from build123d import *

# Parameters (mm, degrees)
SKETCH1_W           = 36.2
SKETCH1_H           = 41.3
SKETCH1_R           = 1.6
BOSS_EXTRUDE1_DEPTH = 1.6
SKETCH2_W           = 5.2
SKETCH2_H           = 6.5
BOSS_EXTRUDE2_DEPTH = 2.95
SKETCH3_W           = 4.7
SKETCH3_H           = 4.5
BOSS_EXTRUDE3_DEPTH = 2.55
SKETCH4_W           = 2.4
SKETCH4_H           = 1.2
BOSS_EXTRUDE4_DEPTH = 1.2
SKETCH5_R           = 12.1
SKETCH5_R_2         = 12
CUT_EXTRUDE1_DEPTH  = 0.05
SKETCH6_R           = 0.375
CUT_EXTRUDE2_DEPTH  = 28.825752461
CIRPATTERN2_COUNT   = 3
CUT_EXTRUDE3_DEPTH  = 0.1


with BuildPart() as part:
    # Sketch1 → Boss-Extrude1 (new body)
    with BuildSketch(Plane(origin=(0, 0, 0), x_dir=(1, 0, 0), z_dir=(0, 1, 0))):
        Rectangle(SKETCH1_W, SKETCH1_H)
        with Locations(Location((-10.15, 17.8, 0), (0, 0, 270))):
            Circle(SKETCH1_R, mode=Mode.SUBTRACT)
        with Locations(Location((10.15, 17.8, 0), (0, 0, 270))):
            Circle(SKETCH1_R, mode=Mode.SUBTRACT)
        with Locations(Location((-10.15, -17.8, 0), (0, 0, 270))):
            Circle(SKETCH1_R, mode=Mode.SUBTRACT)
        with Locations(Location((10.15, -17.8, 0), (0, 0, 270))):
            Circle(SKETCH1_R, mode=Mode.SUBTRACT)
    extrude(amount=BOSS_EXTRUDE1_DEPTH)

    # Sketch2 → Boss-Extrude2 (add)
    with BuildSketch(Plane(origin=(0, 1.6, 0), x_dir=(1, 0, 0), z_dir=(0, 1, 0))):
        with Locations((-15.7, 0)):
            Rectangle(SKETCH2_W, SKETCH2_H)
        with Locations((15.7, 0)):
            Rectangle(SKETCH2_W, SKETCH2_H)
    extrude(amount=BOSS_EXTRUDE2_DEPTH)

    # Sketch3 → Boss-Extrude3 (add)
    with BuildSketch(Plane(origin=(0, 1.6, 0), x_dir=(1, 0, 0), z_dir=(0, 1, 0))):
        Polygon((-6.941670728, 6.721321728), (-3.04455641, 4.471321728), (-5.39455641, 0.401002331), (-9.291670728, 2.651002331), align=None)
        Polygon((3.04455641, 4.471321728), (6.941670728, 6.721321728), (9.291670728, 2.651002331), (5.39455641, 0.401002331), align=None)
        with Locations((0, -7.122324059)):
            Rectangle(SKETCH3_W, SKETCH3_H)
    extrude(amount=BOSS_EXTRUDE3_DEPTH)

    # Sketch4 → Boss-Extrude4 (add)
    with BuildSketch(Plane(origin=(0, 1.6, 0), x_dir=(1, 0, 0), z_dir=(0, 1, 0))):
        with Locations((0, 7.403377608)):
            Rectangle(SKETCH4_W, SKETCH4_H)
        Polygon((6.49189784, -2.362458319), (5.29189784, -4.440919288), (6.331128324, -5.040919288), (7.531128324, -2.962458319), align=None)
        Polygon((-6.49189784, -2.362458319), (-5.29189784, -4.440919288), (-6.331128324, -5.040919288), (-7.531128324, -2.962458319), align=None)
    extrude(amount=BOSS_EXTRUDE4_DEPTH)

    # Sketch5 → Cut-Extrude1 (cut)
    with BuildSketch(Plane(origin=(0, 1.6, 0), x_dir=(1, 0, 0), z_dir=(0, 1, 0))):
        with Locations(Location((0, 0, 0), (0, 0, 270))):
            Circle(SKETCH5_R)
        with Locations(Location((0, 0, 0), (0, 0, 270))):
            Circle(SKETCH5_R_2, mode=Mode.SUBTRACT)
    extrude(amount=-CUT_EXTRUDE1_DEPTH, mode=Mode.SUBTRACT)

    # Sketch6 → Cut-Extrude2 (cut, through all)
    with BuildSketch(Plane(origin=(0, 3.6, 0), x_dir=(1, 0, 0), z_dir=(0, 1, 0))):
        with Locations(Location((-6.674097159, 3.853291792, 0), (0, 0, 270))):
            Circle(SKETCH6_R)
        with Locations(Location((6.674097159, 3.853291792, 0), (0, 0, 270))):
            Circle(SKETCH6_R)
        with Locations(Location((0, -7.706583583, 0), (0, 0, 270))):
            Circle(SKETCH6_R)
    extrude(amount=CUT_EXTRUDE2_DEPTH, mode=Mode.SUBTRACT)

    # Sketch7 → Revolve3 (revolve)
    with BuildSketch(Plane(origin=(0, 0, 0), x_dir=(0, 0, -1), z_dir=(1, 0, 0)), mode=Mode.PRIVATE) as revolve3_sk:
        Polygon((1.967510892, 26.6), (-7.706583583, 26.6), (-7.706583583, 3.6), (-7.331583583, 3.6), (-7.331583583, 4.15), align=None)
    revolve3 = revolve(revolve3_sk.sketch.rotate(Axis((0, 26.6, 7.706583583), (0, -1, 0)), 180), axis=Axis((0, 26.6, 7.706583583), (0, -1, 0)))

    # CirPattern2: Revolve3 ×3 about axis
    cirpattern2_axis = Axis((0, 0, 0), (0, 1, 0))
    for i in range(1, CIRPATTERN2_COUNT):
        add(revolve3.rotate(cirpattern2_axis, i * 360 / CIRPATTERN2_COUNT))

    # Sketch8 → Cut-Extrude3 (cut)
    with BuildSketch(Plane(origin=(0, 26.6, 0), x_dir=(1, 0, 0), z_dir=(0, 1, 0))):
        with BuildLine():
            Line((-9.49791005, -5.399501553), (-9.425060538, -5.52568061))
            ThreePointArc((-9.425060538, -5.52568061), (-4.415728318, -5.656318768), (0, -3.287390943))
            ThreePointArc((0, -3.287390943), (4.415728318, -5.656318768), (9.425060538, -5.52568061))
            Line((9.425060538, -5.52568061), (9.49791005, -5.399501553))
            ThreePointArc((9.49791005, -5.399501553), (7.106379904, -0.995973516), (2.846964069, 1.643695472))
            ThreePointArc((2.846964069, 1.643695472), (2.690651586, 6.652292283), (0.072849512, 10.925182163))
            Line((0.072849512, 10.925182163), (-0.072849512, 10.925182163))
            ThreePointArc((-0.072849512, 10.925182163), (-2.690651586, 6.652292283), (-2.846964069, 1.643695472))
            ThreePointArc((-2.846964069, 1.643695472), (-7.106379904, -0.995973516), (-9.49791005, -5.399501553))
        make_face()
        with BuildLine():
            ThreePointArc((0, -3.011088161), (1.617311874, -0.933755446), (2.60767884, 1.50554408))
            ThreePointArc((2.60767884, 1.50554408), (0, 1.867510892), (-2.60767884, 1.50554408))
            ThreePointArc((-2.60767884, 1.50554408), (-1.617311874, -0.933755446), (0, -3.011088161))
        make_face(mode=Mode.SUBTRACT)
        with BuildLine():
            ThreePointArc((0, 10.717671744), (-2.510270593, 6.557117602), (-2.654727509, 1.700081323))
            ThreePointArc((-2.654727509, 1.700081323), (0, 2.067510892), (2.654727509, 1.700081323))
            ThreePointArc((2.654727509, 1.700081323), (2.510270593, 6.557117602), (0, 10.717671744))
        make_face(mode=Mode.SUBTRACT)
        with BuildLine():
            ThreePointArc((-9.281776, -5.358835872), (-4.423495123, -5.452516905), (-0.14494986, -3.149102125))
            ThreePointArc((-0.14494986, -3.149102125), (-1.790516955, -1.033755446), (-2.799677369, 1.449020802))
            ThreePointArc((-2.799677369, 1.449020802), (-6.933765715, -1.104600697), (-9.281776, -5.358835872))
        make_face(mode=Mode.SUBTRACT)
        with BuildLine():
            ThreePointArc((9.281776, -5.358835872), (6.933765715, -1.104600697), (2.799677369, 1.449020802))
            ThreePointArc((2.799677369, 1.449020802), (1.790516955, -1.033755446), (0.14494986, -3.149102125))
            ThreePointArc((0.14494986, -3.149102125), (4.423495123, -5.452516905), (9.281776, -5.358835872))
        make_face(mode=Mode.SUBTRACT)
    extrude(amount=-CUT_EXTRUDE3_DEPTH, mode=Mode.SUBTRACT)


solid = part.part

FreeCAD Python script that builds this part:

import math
import FreeCAD as App
import Part
import Sketcher

V = App.Vector
Q = App.Units.Quantity

doc = App.newDocument("Part")
params = doc.addObject("Spreadsheet::Sheet", "Params")
for row, (alias, value) in enumerate([
    ("sketch1_diameter", "3.2 mm"),
    ("sketch1_width", "36.2 mm"),
    ("sketch1_height", "41.3 mm"),
    ("pad1_length", "1.6 mm"),
    ("sketch2_width", "5.2 mm"),
    ("sketch2_height", "6.5 mm"),
    ("pad2_length", "2.95 mm"),
    ("sketch3_width", "4.7 mm"),
    ("sketch3_height", "4.5 mm"),
    ("sketch3_length", "4.5 mm"),
    ("sketch3_length2", "4.7 mm"),
    ("pad3_length", "2.55 mm"),
    ("sketch4_width", "2.4 mm"),
    ("sketch4_height", "1.2 mm"),
    ("sketch4_length", "2.4 mm"),
    ("sketch4_length2", "1.2 mm"),
    ("pad4_length", "1.2 mm"),
    ("sketch5_diameter", "24 mm"),
    ("sketch5_diameter2", "24.2 mm"),
    ("pocket1_length", "0.05 mm"),
    ("sketch6_diameter", "0.75 mm"),
    ("sketch7_width", "23 mm"),
    ("sketch7_width2", "0.55 mm"),
    ("revolution_angle", "360 deg"),
    ("pocket3_length", "0.1 mm"),
], start=1):
    params.set(f"A{row}", alias)
    params.set(f"B{row}", "=" + value)
    params.setAlias(f"B{row}", alias)

body = doc.addObject("PartDesign::Body", "Body")

sketch1 = body.newObject("Sketcher::SketchObject", "Sketch")
sketch1.AttachmentSupport = (doc.getObject("XZ_Plane"), [""])
sketch1.MapMode = "FlatFace"
sketch1.addGeometry([
    Part.LineSegment(V(-18.1, -20.6, 0), V(-18.1, 20.6, 0)),
    Part.LineSegment(V(-18.1, 20.6, 0), V(18.1, 20.6, 0)),
    Part.LineSegment(V(18.1, 20.6, 0), V(18.1, -20.6, 0)),
    Part.LineSegment(V(18.1, -20.6, 0), V(-18.1, -20.6, 0)),
    Part.Circle(V(-10.2, 17.8, 0), V(0, 0, 1), 1.6),
    Part.Circle(V(10.2, 17.8, 0), V(0, 0, 1), 1.6),
    Part.Circle(V(-10.2, -17.8, 0), V(0, 0, 1), 1.6),
    Part.Circle(V(10.2, -17.8, 0), V(0, 0, 1), 1.6),
], False)
sketch1.addConstraint([
    Sketcher.Constraint("Coincident", 0, 2, 1, 1),
    Sketcher.Constraint("Coincident", 1, 2, 2, 1),
    Sketcher.Constraint("Coincident", 2, 2, 3, 1),
    Sketcher.Constraint("Coincident", 3, 2, 0, 1),
    Sketcher.Constraint("Vertical", 0),
    Sketcher.Constraint("Horizontal", 1),
    Sketcher.Constraint("Vertical", 2),
    Sketcher.Constraint("Horizontal", 3),
    Sketcher.Constraint("Equal", 4, 5),
    Sketcher.Constraint("Equal", 5, 6),
    Sketcher.Constraint("Equal", 6, 7),
    Sketcher.Constraint("Symmetric", 5, 3, 6, 3, -1, 1),
    Sketcher.Constraint("Symmetric", 4, 3, 7, 3, -1, 1),
    Sketcher.Constraint("Symmetric", 0, 2, 2, 2, -1, 1),
    Sketcher.Constraint("Symmetric", 4, 3, 5, 3, -2),
    Sketcher.Constraint("Diameter", 4, Q("3.2 mm")),
    Sketcher.Constraint("DistanceX", 1, 1, 1, 2, Q("36.2 mm")),
    Sketcher.Constraint("DistanceY", 0, 1, 0, 2, Q("41.3 mm")),
    Sketcher.Constraint("DistanceY", -1, 1, 4, 3, Q("17.8 mm")),
    Sketcher.Constraint("DistanceX", 4, 3, 5, 3, Q("20.3 mm")),
])
sketch1.setExpression("Constraints[15]", "Params.sketch1_diameter")
sketch1.setExpression("Constraints[16]", "Params.sketch1_width")
sketch1.setExpression("Constraints[17]", "Params.sketch1_height")
pad1 = body.newObject("PartDesign::Pad", "Pad")
pad1.Profile = sketch1
pad1.setExpression("Length", "Params.pad1_length")
pad1.Reversed = True

sketch2 = body.newObject("Sketcher::SketchObject", "Sketch001")
sketch2.AttachmentSupport = (doc.getObject("XZ_Plane"), [""])
sketch2.MapMode = "FlatFace"
sketch2.AttachmentOffset = App.Placement(V(0, 0, -1.6), App.Rotation())
sketch2.addGeometry([
    Part.LineSegment(V(-18, -3, 0), V(-18, 3, 0)),
    Part.LineSegment(V(-18, 3, 0), V(-13, 3, 0)),
    Part.LineSegment(V(-13, 3, 0), V(-13, -3, 0)),
    Part.LineSegment(V(-13, -3, 0), V(-18, -3, 0)),
    Part.LineSegment(V(13, -3, 0), V(13, 3, 0)),
    Part.LineSegment(V(13, 3, 0), V(18, 3, 0)),
    Part.LineSegment(V(18, 3, 0), V(18, -3, 0)),
    Part.LineSegment(V(18, -3, 0), V(13, -3, 0)),
], False)
sketch2.addConstraint([
    Sketcher.Constraint("Coincident", 0, 2, 1, 1),
    Sketcher.Constraint("Coincident", 1, 2, 2, 1),
    Sketcher.Constraint("Coincident", 2, 2, 3, 1),
    Sketcher.Constraint("Coincident", 3, 2, 0, 1),
    Sketcher.Constraint("Coincident", 4, 2, 5, 1),
    Sketcher.Constraint("Coincident", 5, 2, 6, 1),
    Sketcher.Constraint("Coincident", 6, 2, 7, 1),
    Sketcher.Constraint("Coincident", 7, 2, 4, 1),
    Sketcher.Constraint("Vertical", 0),
    Sketcher.Constraint("Horizontal", 1),
    Sketcher.Constraint("Vertical", 2),
    Sketcher.Constraint("Horizontal", 3),
    Sketcher.Constraint("Vertical", 4),
    Sketcher.Constraint("Horizontal", 5),
    Sketcher.Constraint("Vertical", 6),
    Sketcher.Constraint("Horizontal", 7),
    Sketcher.Constraint("Symmetric", 2, 2, 4, 2, -1, 1),
    Sketcher.Constraint("Symmetric", 0, 2, 6, 2, -1, 1),
    Sketcher.Constraint("Horizontal", 1, 2, 4, 2),
    Sketcher.Constraint("DistanceX", 1, 1, 1, 2, Q("5.2 mm")),
    Sketcher.Constraint("DistanceY", 0, 1, 0, 2, Q("6.5 mm")),
    Sketcher.Constraint("DistanceX", 0, 2, -1, 1, Q("18.3 mm")),
])
sketch2.setExpression("Constraints[19]", "Params.sketch2_width")
sketch2.setExpression("Constraints[20]", "Params.sketch2_height")
pad2 = body.newObject("PartDesign::Pad", "Pad001")
pad2.Profile = sketch2
pad2.setExpression("Length", "Params.pad2_length")
pad2.Reversed = True

sketch3 = body.newObject("Sketcher::SketchObject", "Sketch002")
sketch3.AttachmentSupport = (doc.getObject("XZ_Plane"), [""])
sketch3.MapMode = "FlatFace"
sketch3.AttachmentOffset = App.Placement(V(0, 0, -1.6), App.Rotation())
sketch3.addGeometry([
    Part.LineSegment(V(-3, -4.5, 0), V(-6.9, -6.7, 0)),
    Part.LineSegment(V(-6.9, -6.7, 0), V(-9.3, -2.7, 0)),
    Part.LineSegment(V(-9.3, -2.7, 0), V(-5.4, -0.4, 0)),
    Part.LineSegment(V(-5.4, -0.4, 0), V(-3, -4.5, 0)),
    Part.LineSegment(V(6.9, -6.7, 0), V(3, -4.5, 0)),
    Part.LineSegment(V(3, -4.5, 0), V(5.4, -0.4, 0)),
    Part.LineSegment(V(5.4, -0.4, 0), V(9.3, -2.7, 0)),
    Part.LineSegment(V(9.3, -2.7, 0), V(6.9, -6.7, 0)),
    Part.LineSegment(V(-2.4, 4.9, 0), V(-2.4, 9.4, 0)),
    Part.LineSegment(V(-2.4, 9.4, 0), V(2.4, 9.4, 0)),
    Part.LineSegment(V(2.4, 9.4, 0), V(2.4, 4.9, 0)),
    Part.LineSegment(V(2.4, 4.9, 0), V(-2.4, 4.9, 0)),
], False)
sketch3.addConstraint([
    Sketcher.Constraint("Coincident", 0, 2, 1, 1),
    Sketcher.Constraint("Coincident", 1, 2, 2, 1),
    Sketcher.Constraint("Coincident", 2, 2, 3, 1),
    Sketcher.Constraint("Coincident", 3, 2, 0, 1),
    Sketcher.Constraint("Coincident", 4, 2, 5, 1),
    Sketcher.Constraint("Coincident", 5, 2, 6, 1),
    Sketcher.Constraint("Coincident", 6, 2, 7, 1),
    Sketcher.Constraint("Coincident", 7, 2, 4, 1),
    Sketcher.Constraint("Coincident", 8, 2, 9, 1),
    Sketcher.Constraint("Coincident", 9, 2, 10, 1),
    Sketcher.Constraint("Coincident", 10, 2, 11, 1),
    Sketcher.Constraint("Coincident", 11, 2, 8, 1),
    Sketcher.Constraint("Vertical", 8),
    Sketcher.Constraint("Horizontal", 9),
    Sketcher.Constraint("Vertical", 10),
    Sketcher.Constraint("Horizontal", 11),
    Sketcher.Constraint("Symmetric", 3, 2, 4, 2, -2),
    Sketcher.Constraint("Symmetric", 2, 2, 5, 2, -2),
    Sketcher.Constraint("Symmetric", 1, 2, 6, 2, -2),
    Sketcher.Constraint("Symmetric", 0, 2, 7, 2, -2),
    Sketcher.Constraint("Perpendicular", 0, 1),
    Sketcher.Constraint("Perpendicular", 1, 2),
    Sketcher.Constraint("Perpendicular", 2, 3),
    Sketcher.Constraint("Angle", 0, Q("-150 deg")),
    Sketcher.Constraint("DistanceX", 9, 1, 9, 2, Q("4.7 mm")),
    Sketcher.Constraint("DistanceY", 8, 1, 8, 2, Q("4.5 mm")),
    Sketcher.Constraint("Distance", 0, Q("4.5 mm")),
    Sketcher.Constraint("Distance", 1, Q("4.7 mm")),
    Sketcher.Constraint("DistanceX", 8, 2, -1, 1, Q("2.35 mm")),
    Sketcher.Constraint("DistanceX", 0, 2, -1, 1, Q("6.941671 mm")),
    Sketcher.Constraint("DistanceY", 0, 2, -1, 1, Q("6.721322 mm")),
    Sketcher.Constraint("DistanceY", -1, 1, 8, 2, Q("9.372324 mm")),
])
sketch3.setExpression("Constraints[24]", "Params.sketch3_width")
sketch3.setExpression("Constraints[25]", "Params.sketch3_height")
sketch3.setExpression("Constraints[26]", "Params.sketch3_length")
sketch3.setExpression("Constraints[27]", "Params.sketch3_length2")
pad3 = body.newObject("PartDesign::Pad", "Pad002")
pad3.Profile = sketch3
pad3.setExpression("Length", "Params.pad3_length")
pad3.Reversed = True

sketch4 = body.newObject("Sketcher::SketchObject", "Sketch003")
sketch4.AttachmentSupport = (doc.getObject("XZ_Plane"), [""])
sketch4.MapMode = "FlatFace"
sketch4.AttachmentOffset = App.Placement(V(0, 0, -1.6), App.Rotation())
sketch4.addGeometry([
    Part.LineSegment(V(-1.2, -8, 0), V(-1.2, -6.8, 0)),
    Part.LineSegment(V(-1.2, -6.8, 0), V(1.2, -6.8, 0)),
    Part.LineSegment(V(1.2, -6.8, 0), V(1.2, -8, 0)),
    Part.LineSegment(V(1.2, -8, 0), V(-1.2, -8, 0)),
    Part.LineSegment(V(6.5, 2.4, 0), V(5.3, 4.4, 0)),
    Part.LineSegment(V(5.3, 4.4, 0), V(6.3, 5, 0)),
    Part.LineSegment(V(6.3, 5, 0), V(7.5, 3, 0)),
    Part.LineSegment(V(7.5, 3, 0), V(6.5, 2.4, 0)),
    Part.LineSegment(V(-5.3, 4.4, 0), V(-6.5, 2.4, 0)),
    Part.LineSegment(V(-6.5, 2.4, 0), V(-7.5, 3, 0)),
    Part.LineSegment(V(-7.5, 3, 0), V(-6.3, 5, 0)),
    Part.LineSegment(V(-6.3, 5, 0), V(-5.3, 4.4, 0)),
], False)
sketch4.addConstraint([
    Sketcher.Constraint("Coincident", 0, 2, 1, 1),
    Sketcher.Constraint("Coincident", 1, 2, 2, 1),
    Sketcher.Constraint("Coincident", 2, 2, 3, 1),
    Sketcher.Constraint("Coincident", 3, 2, 0, 1),
    Sketcher.Constraint("Coincident", 4, 2, 5, 1),
    Sketcher.Constraint("Coincident", 5, 2, 6, 1),
    Sketcher.Constraint("Coincident", 6, 2, 7, 1),
    Sketcher.Constraint("Coincident", 7, 2, 4, 1),
    Sketcher.Constraint("Coincident", 8, 2, 9, 1),
    Sketcher.Constraint("Coincident", 9, 2, 10, 1),
    Sketcher.Constraint("Coincident", 10, 2, 11, 1),
    Sketcher.Constraint("Coincident", 11, 2, 8, 1),
    Sketcher.Constraint("Vertical", 0),
    Sketcher.Constraint("Horizontal", 1),
    Sketcher.Constraint("Vertical", 2),
    Sketcher.Constraint("Horizontal", 3),
    Sketcher.Constraint("Symmetric", 7, 2, 8, 2, -2),
    Sketcher.Constraint("Symmetric", 6, 2, 9, 2, -2),
    Sketcher.Constraint("Symmetric", 5, 2, 10, 2, -2),
    Sketcher.Constraint("Symmetric", 4, 2, 11, 2, -2),
    Sketcher.Constraint("Perpendicular", 4, 5),
    Sketcher.Constraint("Perpendicular", 5, 6),
    Sketcher.Constraint("Perpendicular", 6, 7),
    Sketcher.Constraint("Angle", 4, Q("120 deg")),
    Sketcher.Constraint("DistanceX", 1, 1, 1, 2, Q("2.4 mm")),
    Sketcher.Constraint("DistanceY", 0, 1, 0, 2, Q("1.2 mm")),
    Sketcher.Constraint("Distance", 4, Q("2.4 mm")),
    Sketcher.Constraint("Distance", 5, Q("1.2 mm")),
    Sketcher.Constraint("DistanceX", 0, 2, -1, 1, Q("1.2 mm")),
    Sketcher.Constraint("DistanceY", -1, 1, 4, 2, Q("4.440919 mm")),
    Sketcher.Constraint("DistanceX", -1, 1, 5, 2, Q("6.331128 mm")),
    Sketcher.Constraint("DistanceY", 0, 2, -1, 1, Q("6.803378 mm")),
])
sketch4.setExpression("Constraints[24]", "Params.sketch4_width")
sketch4.setExpression("Constraints[25]", "Params.sketch4_height")
sketch4.setExpression("Constraints[26]", "Params.sketch4_length")
sketch4.setExpression("Constraints[27]", "Params.sketch4_length2")
pad4 = body.newObject("PartDesign::Pad", "Pad003")
pad4.Profile = sketch4
pad4.setExpression("Length", "Params.pad4_length")
pad4.Reversed = True

sketch5 = body.newObject("Sketcher::SketchObject", "Sketch004")
sketch5.AttachmentSupport = (doc.getObject("XZ_Plane"), [""])
sketch5.MapMode = "FlatFace"
sketch5.AttachmentOffset = App.Placement(V(0, 0, -1.6), App.Rotation())
sketch5.addGeometry([
    Part.Circle(V(0, 0, 0), V(0, 0, 1), 12),
    Part.Circle(V(0, 0, 0), V(0, 0, 1), 12),
], False)
sketch5.addConstraint([
    Sketcher.Constraint("Coincident", 0, 3, -1, 1),
    Sketcher.Constraint("Coincident", 1, 3, -1, 1),
    Sketcher.Constraint("Diameter", 1, Q("24 mm")),
    Sketcher.Constraint("Diameter", 0, Q("24.2 mm")),
])
sketch5.setExpression("Constraints[2]", "Params.sketch5_diameter")
sketch5.setExpression("Constraints[3]", "Params.sketch5_diameter2")
pocket1 = body.newObject("PartDesign::Pocket", "Pocket")
pocket1.Profile = sketch5
pocket1.setExpression("Length", "Params.pocket1_length")
pocket1.Reversed = True

sketch6 = body.newObject("Sketcher::SketchObject", "Sketch005")
sketch6.AttachmentSupport = (doc.getObject("XZ_Plane"), [""])
sketch6.MapMode = "FlatFace"
sketch6.AttachmentOffset = App.Placement(V(0, 0, -3.6), App.Rotation())
sketch6.addGeometry([
    Part.Circle(V(-6.67, -3.85, 0), V(0, 0, 1), 0.38),
    Part.Circle(V(6.67, -3.85, 0), V(0, 0, 1), 0.38),
    Part.Circle(V(0, 7.71, 0), V(0, 0, 1), 0.38),
], False)
sketch6.addConstraint([
    Sketcher.Constraint("Equal", 0, 1),
    Sketcher.Constraint("Equal", 1, 2),
    Sketcher.Constraint("Symmetric", 0, 3, 1, 3, -2),
    Sketcher.Constraint("PointOnObject", 2, 3, -2),
    Sketcher.Constraint("Diameter", 0, Q("0.75 mm")),
    Sketcher.Constraint("DistanceY", 0, 3, -1, 1, Q("3.853292 mm")),
    Sketcher.Constraint("DistanceX", 0, 3, -1, 1, Q("6.674097 mm")),
    Sketcher.Constraint("DistanceY", -1, 1, 2, 3, Q("7.706584 mm")),
])
sketch6.setExpression("Constraints[4]", "Params.sketch6_diameter")
pocket2 = body.newObject("PartDesign::Pocket", "Pocket001")
pocket2.Profile = sketch6
pocket2.Type = "ThroughAll"

sketch7 = body.newObject("Sketcher::SketchObject", "Sketch006")
sketch7.AttachmentSupport = (doc.getObject("YZ_Plane"), [""])
sketch7.MapMode = "FlatFace"
sketch7.addGeometry([
    Part.LineSegment(V(26.6, -1.97, 0), V(26.6, 7.71, 0)),
    Part.LineSegment(V(26.6, 7.71, 0), V(3.6, 7.71, 0)),
    Part.LineSegment(V(3.6, 7.71, 0), V(3.6, 7.33, 0)),
    Part.LineSegment(V(3.6, 7.33, 0), V(4.15, 7.33, 0)),
    Part.LineSegment(V(4.15, 7.33, 0), V(26.6, -1.97, 0)),
], False)
sketch7.addGeometry(Part.LineSegment(V(26.6, 7.71, 0), V(3.6, 7.71, 0)), True)
sketch7.addConstraint([
    Sketcher.Constraint("Coincident", 0, 2, 1, 1),
    Sketcher.Constraint("Coincident", 1, 2, 2, 1),
    Sketcher.Constraint("Coincident", 2, 2, 3, 1),
    Sketcher.Constraint("Coincident", 3, 2, 4, 1),
    Sketcher.Constraint("Coincident", 4, 2, 0, 1),
    Sketcher.Constraint("Vertical", 0),
    Sketcher.Constraint("Horizontal", 1),
    Sketcher.Constraint("Vertical", 2),
    Sketcher.Constraint("Horizontal", 3),
    Sketcher.Constraint("Horizontal", 5),
    Sketcher.Constraint("Coincident", 5, 1, 0, 2),
    Sketcher.Constraint("Vertical", 2, 2, 5, 2),
    Sketcher.Constraint("DistanceX", 1, 2, 1, 1, Q("23 mm")),
    Sketcher.Constraint("Angle", 4, Q("-22.5 deg")),
    Sketcher.Constraint("DistanceX", 3, 1, 3, 2, Q("0.55 mm")),
    Sketcher.Constraint("DistanceX", -1, 1, 0, 2, Q("26.6 mm")),
    Sketcher.Constraint("DistanceY", 2, 2, 2, 1, Q("0.375 mm")),
    Sketcher.Constraint("DistanceY", 4, 2, -1, 1, Q("1.967511 mm")),
])
sketch7.setExpression("Constraints[12]", "Params.sketch7_width")
sketch7.setExpression("Constraints[14]", "Params.sketch7_width2")
revolution = body.newObject("PartDesign::Revolution", "Revolution")
revolution.Profile = sketch7
revolution.ReferenceAxis = (sketch7, ["Axis0"])
revolution.setExpression("Angle", "Params.revolution_angle")
doc.recompute()

polarpattern = body.newObject("PartDesign::PolarPattern", "PolarPattern")
polarpattern.Originals = [revolution]
polarpattern.Axis = (doc.getObject("Y_Axis"), [""])
polarpattern.Angle = 360
polarpattern.Occurrences = 3
body.Tip = polarpattern

sketch8 = body.newObject("Sketcher::SketchObject", "Sketch007")
sketch8.AttachmentSupport = (doc.getObject("XZ_Plane"), [""])
sketch8.MapMode = "FlatFace"
sketch8.AttachmentOffset = App.Placement(V(0, 0, -26.6), App.Rotation())
sketch8.addGeometry([
    Part.LineSegment(V(-9.5, 5.4, 0), V(-9.43, 5.53, 0)),
    Part.ArcOfCircle(Part.Circle(V(-6.67, -3.85, 0), V(0, 0, 1), 9.77), math.radians(47), math.radians(106)),
    Part.ArcOfCircle(Part.Circle(V(6.67, -3.85, 0), V(0, 0, 1), 9.77), math.radians(74), math.radians(133)),
    Part.LineSegment(V(9.43, 5.53, 0), V(9.5, 5.4, 0)),
    Part.ArcOfCircle(Part.Circle(V(0, 7.71, 0), V(0, 0, 1), 9.77), math.radians(-73), math.radians(-14)),
    Part.ArcOfCircle(Part.Circle(V(-6.67, -3.85, 0), V(0, 0, 1), 9.77), math.radians(-46), math.radians(13)),
    Part.LineSegment(V(0.07, -10.93, 0), V(-0.07, -10.93, 0)),
    Part.ArcOfCircle(Part.Circle(V(6.67, -3.85, 0), V(0, 0, 1), 9.77), math.radians(167), math.radians(226)),
    Part.ArcOfCircle(Part.Circle(V(0, 7.71, 0), V(0, 0, 1), 9.77), math.radians(-166), math.radians(-107)),
    Part.ArcOfCircle(Part.Circle(V(-6.67, -3.85, 0), V(0, 0, 1), 9.57), math.radians(47), math.radians(106)),
    Part.ArcOfCircle(Part.Circle(V(0, 7.71, 0), V(0, 0, 1), 9.57), math.radians(-166), math.radians(-107)),
    Part.ArcOfCircle(Part.Circle(V(6.67, -3.85, 0), V(0, 0, 1), 9.77), math.radians(134), math.radians(166)),
    Part.ArcOfCircle(Part.Circle(V(0, 7.71, 0), V(0, 0, 1), 9.57), math.radians(-73), math.radians(-14)),
    Part.ArcOfCircle(Part.Circle(V(6.67, -3.85, 0), V(0, 0, 1), 9.57), math.radians(74), math.radians(133)),
    Part.ArcOfCircle(Part.Circle(V(-6.67, -3.85, 0), V(0, 0, 1), 9.77), math.radians(14), math.radians(46)),
    Part.ArcOfCircle(Part.Circle(V(-6.67, -3.85, 0), V(0, 0, 1), 9.57), math.radians(14), math.radians(46)),
    Part.ArcOfCircle(Part.Circle(V(6.67, -3.85, 0), V(0, 0, 1), 9.57), math.radians(134), math.radians(166)),
    Part.ArcOfCircle(Part.Circle(V(0, 7.71, 0), V(0, 0, 1), 9.57), math.radians(-106), math.radians(-74)),
    Part.ArcOfCircle(Part.Circle(V(6.67, -3.85, 0), V(0, 0, 1), 9.57), math.radians(167), math.radians(226)),
    Part.ArcOfCircle(Part.Circle(V(-6.67, -3.85, 0), V(0, 0, 1), 9.57), math.radians(-46), math.radians(13)),
    Part.ArcOfCircle(Part.Circle(V(0, 7.71, 0), V(0, 0, 1), 9.77), math.radians(-106), math.radians(-74)),
], False)
sketch8.addConstraint([
    Sketcher.Constraint("Coincident", 0, 2, 1, 2),
    Sketcher.Constraint("Coincident", 1, 1, 2, 2),
    Sketcher.Constraint("Coincident", 2, 1, 3, 1),
    Sketcher.Constraint("Coincident", 3, 2, 4, 2),
    Sketcher.Constraint("Coincident", 4, 1, 5, 2),
    Sketcher.Constraint("Coincident", 5, 1, 6, 1),
    Sketcher.Constraint("Coincident", 6, 2, 7, 2),
    Sketcher.Constraint("Coincident", 7, 1, 8, 2),
    Sketcher.Constraint("Coincident", 8, 1, 0, 1),
    Sketcher.Constraint("Coincident", 9, 2, 10, 1),
    Sketcher.Constraint("Coincident", 10, 2, 11, 2),
    Sketcher.Constraint("Coincident", 11, 1, 9, 1),
    Sketcher.Constraint("Coincident", 12, 2, 13, 1),
    Sketcher.Constraint("Coincident", 13, 2, 14, 2),
    Sketcher.Constraint("Coincident", 14, 1, 12, 1),
    Sketcher.Constraint("Coincident", 15, 2, 16, 1),
    Sketcher.Constraint("Coincident", 16, 2, 17, 1),
    Sketcher.Constraint("Coincident", 17, 2, 15, 1),
    Sketcher.Constraint("Coincident", 18, 2, 19, 1),
    Sketcher.Constraint("Coincident", 19, 2, 20, 2),
    Sketcher.Constraint("Coincident", 20, 1, 18, 1),
    Sketcher.Constraint("Horizontal", 6),
    Sketcher.Constraint("Coincident", 5, 3, 1, 3),
    Sketcher.Constraint("Coincident", 7, 3, 2, 3),
    Sketcher.Constraint("Coincident", 8, 3, 4, 3),
    Sketcher.Constraint("Coincident", 9, 3, 1, 3),
    Sketcher.Constraint("Coincident", 10, 3, 4, 3),
    Sketcher.Constraint("Coincident", 11, 3, 2, 3),
    Sketcher.Constraint("Coincident", 12, 3, 4, 3),
    Sketcher.Constraint("Coincident", 13, 3, 2, 3),
    Sketcher.Constraint("Coincident", 14, 3, 1, 3),
    Sketcher.Constraint("Coincident", 15, 3, 1, 3),
    Sketcher.Constraint("Coincident", 16, 3, 2, 3),
    Sketcher.Constraint("Coincident", 17, 3, 4, 3),
    Sketcher.Constraint("Coincident", 18, 3, 2, 3),
    Sketcher.Constraint("Coincident", 19, 3, 1, 3),
    Sketcher.Constraint("Coincident", 20, 3, 4, 3),
    Sketcher.Constraint("Equal", 1, 2),
    Sketcher.Constraint("Equal", 2, 4),
    Sketcher.Constraint("Equal", 4, 5),
    Sketcher.Constraint("Equal", 5, 7),
    Sketcher.Constraint("Equal", 7, 8),
    Sketcher.Constraint("Equal", 9, 10),
    Sketcher.Constraint("Equal", 8, 11),
    Sketcher.Constraint("Equal", 10, 12),
    Sketcher.Constraint("Equal", 12, 13),
    Sketcher.Constraint("Equal", 11, 14),
    Sketcher.Constraint("Equal", 13, 15),
    Sketcher.Constraint("Equal", 15, 16),
    Sketcher.Constraint("Equal", 16, 17),
    Sketcher.Constraint("Equal", 17, 18),
    Sketcher.Constraint("Equal", 18, 19),
    Sketcher.Constraint("Equal", 14, 20),
    Sketcher.Constraint("Symmetric", 1, 3, 2, 3, -2),
    Sketcher.Constraint("Symmetric", 3, 2, 8, 1, -2),
    Sketcher.Constraint("Horizontal", 0, 2, 2, 1),
    Sketcher.Constraint("Angle", 0, Q("60 deg")),
    Sketcher.Constraint("DistanceX", 6, 2, 6, 1, Q("0.145699 mm")),
    Sketcher.Constraint("Radius", 1, Q("9.774094 mm")),
    Sketcher.Constraint("Radius", 9, Q("9.574094 mm")),
    Sketcher.Constraint("Distance", 0, Q("0.145699 mm")),
    Sketcher.Constraint("DistanceY", -1, 1, 3, 2, Q("5.399502 mm")),
    Sketcher.Constraint("DistanceY", 1, 3, -1, 1, Q("3.853292 mm")),
    Sketcher.Constraint("DistanceX", 0, 2, -1, 1, Q("9.425061 mm")),
])
pocket3 = body.newObject("PartDesign::Pocket", "Pocket002")
pocket3.Profile = sketch8
pocket3.setExpression("Length", "Params.pocket3_length")
pocket3.Reversed = True

doc.recompute()
